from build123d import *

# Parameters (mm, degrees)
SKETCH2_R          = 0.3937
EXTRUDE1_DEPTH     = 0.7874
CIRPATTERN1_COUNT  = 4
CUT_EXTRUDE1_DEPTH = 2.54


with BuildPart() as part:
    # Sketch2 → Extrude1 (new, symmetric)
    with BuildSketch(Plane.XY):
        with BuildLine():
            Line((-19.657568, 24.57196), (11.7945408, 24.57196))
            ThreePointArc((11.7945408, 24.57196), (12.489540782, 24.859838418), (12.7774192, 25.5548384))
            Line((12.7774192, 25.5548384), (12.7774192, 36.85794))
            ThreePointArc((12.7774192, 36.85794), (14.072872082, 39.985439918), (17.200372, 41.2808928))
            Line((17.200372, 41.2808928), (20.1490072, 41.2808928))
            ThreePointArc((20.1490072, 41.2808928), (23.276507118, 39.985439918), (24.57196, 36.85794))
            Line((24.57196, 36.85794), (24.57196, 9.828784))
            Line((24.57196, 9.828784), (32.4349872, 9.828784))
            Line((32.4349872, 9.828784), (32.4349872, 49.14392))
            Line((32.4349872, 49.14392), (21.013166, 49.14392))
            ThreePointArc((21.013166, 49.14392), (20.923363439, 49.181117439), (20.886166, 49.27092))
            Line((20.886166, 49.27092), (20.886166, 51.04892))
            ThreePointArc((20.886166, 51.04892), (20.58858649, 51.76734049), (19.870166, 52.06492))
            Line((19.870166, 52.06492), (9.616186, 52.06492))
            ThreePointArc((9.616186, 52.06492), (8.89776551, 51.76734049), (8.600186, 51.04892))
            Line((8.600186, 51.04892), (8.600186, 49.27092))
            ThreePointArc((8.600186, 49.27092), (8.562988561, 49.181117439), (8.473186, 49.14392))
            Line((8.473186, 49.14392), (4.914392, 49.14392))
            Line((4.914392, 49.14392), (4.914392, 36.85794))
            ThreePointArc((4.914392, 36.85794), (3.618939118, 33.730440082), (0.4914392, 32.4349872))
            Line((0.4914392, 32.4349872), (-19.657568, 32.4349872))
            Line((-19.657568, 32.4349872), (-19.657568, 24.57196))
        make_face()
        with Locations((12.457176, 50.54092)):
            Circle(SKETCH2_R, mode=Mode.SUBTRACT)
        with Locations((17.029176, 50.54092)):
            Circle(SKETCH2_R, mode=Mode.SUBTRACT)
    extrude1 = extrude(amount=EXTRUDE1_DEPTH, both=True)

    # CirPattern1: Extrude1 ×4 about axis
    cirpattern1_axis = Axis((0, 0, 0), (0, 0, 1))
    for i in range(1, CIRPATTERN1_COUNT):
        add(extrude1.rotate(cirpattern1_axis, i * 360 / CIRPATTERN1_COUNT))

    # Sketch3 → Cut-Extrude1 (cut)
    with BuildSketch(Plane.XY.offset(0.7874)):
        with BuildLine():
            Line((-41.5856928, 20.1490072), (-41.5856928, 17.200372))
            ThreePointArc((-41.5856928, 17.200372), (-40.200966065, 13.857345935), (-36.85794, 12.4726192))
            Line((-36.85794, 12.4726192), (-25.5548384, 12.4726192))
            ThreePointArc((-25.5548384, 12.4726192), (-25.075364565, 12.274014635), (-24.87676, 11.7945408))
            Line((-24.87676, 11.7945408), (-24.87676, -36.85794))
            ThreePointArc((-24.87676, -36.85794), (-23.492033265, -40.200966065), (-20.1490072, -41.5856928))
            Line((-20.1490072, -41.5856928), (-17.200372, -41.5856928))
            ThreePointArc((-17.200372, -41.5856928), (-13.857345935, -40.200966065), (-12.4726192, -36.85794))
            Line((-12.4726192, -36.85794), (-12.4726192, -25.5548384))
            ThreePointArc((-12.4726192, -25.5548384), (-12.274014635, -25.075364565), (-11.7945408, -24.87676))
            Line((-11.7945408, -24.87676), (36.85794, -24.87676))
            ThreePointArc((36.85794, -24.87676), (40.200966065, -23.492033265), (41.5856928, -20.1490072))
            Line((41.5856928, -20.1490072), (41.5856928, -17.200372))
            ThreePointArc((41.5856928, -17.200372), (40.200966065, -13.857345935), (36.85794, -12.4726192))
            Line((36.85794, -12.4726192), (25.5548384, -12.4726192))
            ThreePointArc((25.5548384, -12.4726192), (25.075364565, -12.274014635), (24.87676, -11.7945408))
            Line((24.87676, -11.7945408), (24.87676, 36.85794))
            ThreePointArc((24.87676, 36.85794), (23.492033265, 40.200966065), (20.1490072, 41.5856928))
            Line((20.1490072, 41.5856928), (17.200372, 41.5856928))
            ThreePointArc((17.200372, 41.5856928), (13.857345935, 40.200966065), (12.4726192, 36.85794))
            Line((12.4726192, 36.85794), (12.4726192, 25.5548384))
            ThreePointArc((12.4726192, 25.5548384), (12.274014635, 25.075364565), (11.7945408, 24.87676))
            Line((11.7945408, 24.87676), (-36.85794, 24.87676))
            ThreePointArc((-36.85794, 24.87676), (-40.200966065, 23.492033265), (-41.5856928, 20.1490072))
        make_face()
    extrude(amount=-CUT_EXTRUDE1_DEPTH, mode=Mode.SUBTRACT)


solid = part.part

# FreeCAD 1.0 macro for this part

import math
import FreeCAD as App
import Part
import Sketcher
Q = App.Units.Quantity

doc = App.newDocument("Part")
body = doc.addObject("PartDesign::Body", "Body")

# Sketch on XY plane
sketch1 = body.newObject("Sketcher::SketchObject", "Sketch")
sketch1.AttachmentSupport = (doc.getObject("XY_Plane"), [""])
sketch1.MapMode = "FlatFace"
sketch1.addGeometry([
    Part.LineSegment(App.Vector(-19.66, 24.57, 0), App.Vector(11.79, 24.57, 0)),  # 0
    Part.ArcOfCircle(Part.Circle(App.Vector(11.79, 25.55, 0), App.Vector(0, 0, 1), 0.98), math.radians(-90), math.radians(0)),  # 1
    Part.LineSegment(App.Vector(12.78, 25.55, 0), App.Vector(12.78, 36.86, 0)),  # 2
    Part.ArcOfCircle(Part.Circle(App.Vector(17.2, 36.86, 0), App.Vector(0, 0, 1), 4.42), math.radians(90), math.radians(180)),  # 3
    Part.LineSegment(App.Vector(17.2, 41.28, 0), App.Vector(20.15, 41.28, 0)),  # 4
    Part.ArcOfCircle(Part.Circle(App.Vector(20.15, 36.86, 0), App.Vector(0, 0, 1), 4.42), math.radians(0), math.radians(90)),  # 5
    Part.LineSegment(App.Vector(24.57, 36.86, 0), App.Vector(24.57, 9.83, 0)),  # 6
    Part.LineSegment(App.Vector(24.57, 9.83, 0), App.Vector(32.43, 9.83, 0)),  # 7
    Part.LineSegment(App.Vector(32.43, 9.83, 0), App.Vector(32.43, 49.14, 0)),  # 8
    Part.LineSegment(App.Vector(32.43, 49.14, 0), App.Vector(21.01, 49.14, 0)),  # 9
    Part.ArcOfCircle(Part.Circle(App.Vector(21.01, 49.27, 0), App.Vector(0, 0, 1), 0.13), math.radians(-180), math.radians(-90)),  # 10
    Part.LineSegment(App.Vector(20.89, 49.27, 0), App.Vector(20.89, 51.05, 0)),  # 11
    Part.ArcOfCircle(Part.Circle(App.Vector(19.87, 51.05, 0), App.Vector(0, 0, 1), 1.02), math.radians(0), math.radians(90)),  # 12
    Part.LineSegment(App.Vector(19.87, 52.06, 0), App.Vector(9.62, 52.06, 0)),  # 13
    Part.ArcOfCircle(Part.Circle(App.Vector(9.62, 51.05, 0), App.Vector(0, 0, 1), 1.02), math.radians(90), math.radians(180)),  # 14
    Part.LineSegment(App.Vector(8.6, 51.05, 0), App.Vector(8.6, 49.27, 0)),  # 15
    Part.ArcOfCircle(Part.Circle(App.Vector(8.47, 49.27, 0), App.Vector(0, 0, 1), 0.13), math.radians(-90), math.radians(0)),  # 16
    Part.LineSegment(App.Vector(8.47, 49.14, 0), App.Vector(4.91, 49.14, 0)),  # 17
    Part.LineSegment(App.Vector(4.91, 49.14, 0), App.Vector(4.91, 36.86, 0)),  # 18
    Part.ArcOfCircle(Part.Circle(App.Vector(0.49, 36.86, 0), App.Vector(0, 0, 1), 4.42), math.radians(-90), math.radians(0)),  # 19
    Part.LineSegment(App.Vector(0.49, 32.43, 0), App.Vector(-19.66, 32.43, 0)),  # 20
    Part.LineSegment(App.Vector(-19.66, 32.43, 0), App.Vector(-19.66, 24.57, 0)),  # 21
    Part.Circle(App.Vector(12.46, 50.54, 0), App.Vector(0, 0, 1), 0.39),  # 22
    Part.Circle(App.Vector(17.03, 50.54, 0), App.Vector(0, 0, 1), 0.39),  # 23
], False)
sketch1.addConstraint([
    Sketcher.Constraint("Tangent", 0, 2, 1, 1),
    Sketcher.Constraint("Tangent", 1, 2, 2, 1),
    Sketcher.Constraint("Tangent", 2, 2, 3, 2),
    Sketcher.Constraint("Tangent", 3, 1, 4, 1),
    Sketcher.Constraint("Tangent", 4, 2, 5, 2),
    Sketcher.Constraint("Tangent", 5, 1, 6, 1),
    Sketcher.Constraint("Coincident", 6, 2, 7, 1),
    Sketcher.Constraint("Coincident", 7, 2, 8, 1),
    Sketcher.Constraint("Coincident", 8, 2, 9, 1),
    Sketcher.Constraint("Tangent", 9, 2, 10, 2),
    Sketcher.Constraint("Tangent", 10, 1, 11, 1),
    Sketcher.Constraint("Tangent", 11, 2, 12, 1),
    Sketcher.Constraint("Tangent", 12, 2, 13, 1),
    Sketcher.Constraint("Tangent", 13, 2, 14, 1),
    Sketcher.Constraint("Tangent", 14, 2, 15, 1),
    Sketcher.Constraint("Tangent", 15, 2, 16, 2),
    Sketcher.Constraint("Tangent", 16, 1, 17, 1),
    Sketcher.Constraint("Coincident", 17, 2, 18, 1),
    Sketcher.Constraint("Tangent", 18, 2, 19, 2),
    Sketcher.Constraint("Tangent", 19, 1, 20, 1),
    Sketcher.Constraint("Coincident", 20, 2, 21, 1),
    Sketcher.Constraint("Coincident", 21, 2, 0, 1),
    Sketcher.Constraint("Horizontal", 0),
    Sketcher.Constraint("Vertical", 2),
    Sketcher.Constraint("Horizontal", 4),
    Sketcher.Constraint("Vertical", 6),
    Sketcher.Constraint("Horizontal", 7),
    Sketcher.Constraint("Vertical", 8),
    Sketcher.Constraint("Horizontal", 9),
    Sketcher.Constraint("Vertical", 11),
    Sketcher.Constraint("Horizontal", 13),
    Sketcher.Constraint("Vertical", 15),
    Sketcher.Constraint("Horizontal", 17),
    Sketcher.Constraint("Vertical", 18),
    Sketcher.Constraint("Horizontal", 20),
    Sketcher.Constraint("Vertical", 21),
    Sketcher.Constraint("Equal", 3, 5),
    Sketcher.Constraint("Equal", 12, 14),
    Sketcher.Constraint("Equal", 10, 16),
    Sketcher.Constraint("Equal", 5, 19),
    Sketcher.Constraint("Equal", 22, 23),
    Sketcher.Constraint("Horizontal", 10, 3, 16, 3),
    Sketcher.Constraint("Horizontal", 5, 3, 19, 3),
    Sketcher.Constraint("Horizontal", 22, 3, 23, 3),
    Sketcher.Constraint("Equal", 7, 21),
    Sketcher.Constraint("Radius", 12, Q("0.04 in")),
    Sketcher.Constraint("Diameter", 22, Q("0.031 in")),
    Sketcher.Constraint("Radius", 10, Q("0.005 in")),
    Sketcher.Constraint("DistanceY", 11, 1, 11, 2, Q("0.07 in")),
    Sketcher.Constraint("DistanceY", 22, 3, 14, 3, Q("0.02 in")),
    Sketcher.Constraint("DistanceX", 22, 3, 23, 3, Q("0.18 in")),
    Sketcher.Constraint("DistanceX", 13, 2, 13, 1, Q("0.4037 in")),
    Sketcher.Constraint("DistanceY", 18, 2, 18, 1, Q("0.4837 in")),
    Sketcher.Constraint("Radius", 1, 0.982878),
    Sketcher.Constraint("DistanceY", 2, 1, 2, 2, 11.303102),
    Sketcher.Constraint("DistanceY", -1, 1, 3, 3, Q("1.4511 in")),
    Sketcher.Constraint("DistanceX", -1, 1, 5, 1, Q("0.9674 in")),
    Sketcher.Constraint("Radius", 3, 4.422953),
    Sketcher.Constraint("DistanceX", 19, 3, 1, 2, Q("0.4837 in")),
    Sketcher.Constraint("DistanceX", 20, 2, 18, 2, Q("0.9674 in")),
    Sketcher.Constraint("DistanceX", 9, 2, 9, 1, 11.421821),
    Sketcher.Constraint("DistanceX", 4, 1, 4, 2, 2.948635),
    Sketcher.Constraint("DistanceY", 6, 2, 6, 1, 27.029156),
    Sketcher.Constraint("DistanceX", 14, 3, 22, 3, 2.84099),
])
pad1 = body.newObject("PartDesign::Pad", "Pad")
pad1.Profile = sketch1
pad1.Length = Q("0.062 in")
pad1.Midplane = True
doc.recompute()

polarpattern = body.newObject("PartDesign::PolarPattern", "PolarPattern")
polarpattern.Originals = [pad1]
polarpattern.Axis = (doc.getObject("Z_Axis"), [""])
polarpattern.Angle = 360
polarpattern.Occurrences = 4
body.Tip = polarpattern

# Sketch on XY plane
sketch2 = body.newObject("Sketcher::SketchObject", "Sketch001")
sketch2.AttachmentSupport = (doc.getObject("XY_Plane"), [""])
sketch2.MapMode = "FlatFace"
sketch2.AttachmentOffset = App.Placement(App.Vector(0, 0, 0.031 * 25.4), App.Rotation())
sketch2.addGeometry([
    Part.LineSegment(App.Vector(-41.6, 20.1, 0), App.Vector(-41.6, 17.2, 0)),  # 0
    Part.ArcOfCircle(Part.Circle(App.Vector(-36.9, 17.2, 0), App.Vector(0, 0, 1), 4.7), math.radians(180), math.radians(270)),  # 1
    Part.LineSegment(App.Vector(-36.9, 12.5, 0), App.Vector(-25.6, 12.5, 0)),  # 2
    Part.ArcOfCircle(Part.Circle(App.Vector(-25.6, 11.8, 0), App.Vector(0, 0, 1), 0.7), math.radians(0), math.radians(90)),  # 3
    Part.LineSegment(App.Vector(-24.9, 11.8, 0), App.Vector(-24.9, -36.9, 0)),  # 4
    Part.ArcOfCircle(Part.Circle(App.Vector(-20.1, -36.9, 0), App.Vector(0, 0, 1), 4.7), math.radians(180), math.radians(270)),  # 5
    Part.LineSegment(App.Vector(-20.1, -41.6, 0), App.Vector(-17.2, -41.6, 0)),  # 6
    Part.ArcOfCircle(Part.Circle(App.Vector(-17.2, -36.9, 0), App.Vector(0, 0, 1), 4.7), math.radians(-90), math.radians(0)),  # 7
    Part.LineSegment(App.Vector(-12.5, -36.9, 0), App.Vector(-12.5, -25.6, 0)),  # 8
    Part.ArcOfCircle(Part.Circle(App.Vector(-11.8, -25.6, 0), App.Vector(0, 0, 1), 0.7), math.radians(90), math.radians(180)),  # 9
    Part.LineSegment(App.Vector(-11.8, -24.9, 0), App.Vector(36.9, -24.9, 0)),  # 10
    Part.ArcOfCircle(Part.Circle(App.Vector(36.9, -20.1, 0), App.Vector(0, 0, 1), 4.7), math.radians(-90), math.radians(0)),  # 11
    Part.LineSegment(App.Vector(41.6, -20.1, 0), App.Vector(41.6, -17.2, 0)),  # 12
    Part.ArcOfCircle(Part.Circle(App.Vector(36.9, -17.2, 0), App.Vector(0, 0, 1), 4.7), math.radians(0), math.radians(90)),  # 13
    Part.LineSegment(App.Vector(36.9, -12.5, 0), App.Vector(25.6, -12.5, 0)),  # 14
    Part.ArcOfCircle(Part.Circle(App.Vector(25.6, -11.8, 0), App.Vector(0, 0, 1), 0.7), math.radians(180), math.radians(270)),  # 15
    Part.LineSegment(App.Vector(24.9, -11.8, 0), App.Vector(24.9, 36.9, 0)),  # 16
    Part.ArcOfCircle(Part.Circle(App.Vector(20.1, 36.9, 0), App.Vector(0, 0, 1), 4.7), math.radians(0), math.radians(90)),  # 17
    Part.LineSegment(App.Vector(20.1, 41.6, 0), App.Vector(17.2, 41.6, 0)),  # 18
    Part.ArcOfCircle(Part.Circle(App.Vector(17.2, 36.9, 0), App.Vector(0, 0, 1), 4.7), math.radians(90), math.radians(180)),  # 19
    Part.LineSegment(App.Vector(12.5, 36.9, 0), App.Vector(12.5, 25.6, 0)),  # 20
    Part.ArcOfCircle(Part.Circle(App.Vector(11.8, 25.6, 0), App.Vector(0, 0, 1), 0.7), math.radians(-90), math.radians(0)),  # 21
    Part.LineSegment(App.Vector(11.8, 24.9, 0), App.Vector(-36.9, 24.9, 0)),  # 22
    Part.ArcOfCircle(Part.Circle(App.Vector(-36.9, 20.1, 0), App.Vector(0, 0, 1), 4.7), math.radians(90), math.radians(180)),  # 23
], False)
sketch2.addConstraint([
    Sketcher.Constraint("Tangent", 0, 2, 1, 1),
    Sketcher.Constraint("Tangent", 1, 2, 2, 1),
    Sketcher.Constraint("Tangent", 2, 2, 3, 2),
    Sketcher.Constraint("Tangent", 3, 1, 4, 1),
    Sketcher.Constraint("Tangent", 4, 2, 5, 1),
    Sketcher.Constraint("Tangent", 5, 2, 6, 1),
    Sketcher.Constraint("Tangent", 6, 2, 7, 1),
    Sketcher.Constraint("Tangent", 7, 2, 8, 1),
    Sketcher.Constraint("Tangent", 8, 2, 9, 2),
    Sketcher.Constraint("Tangent", 9, 1, 10, 1),
    Sketcher.Constraint("Tangent", 10, 2, 11, 1),
    Sketcher.Constraint("Tangent", 11, 2, 12, 1),
    Sketcher.Constraint("Tangent", 12, 2, 13, 1),
    Sketcher.Constraint("Tangent", 13, 2, 14, 1),
    Sketcher.Constraint("Tangent", 14, 2, 15, 2),
    Sketcher.Constraint("Tangent", 15, 1, 16, 1),
    Sketcher.Constraint("Tangent", 16, 2, 17, 1),
    Sketcher.Constraint("Tangent", 17, 2, 18, 1),
    Sketcher.Constraint("Tangent", 18, 2, 19, 1),
    Sketcher.Constraint("Tangent", 19, 2, 20, 1),
    Sketcher.Constraint("Tangent", 20, 2, 21, 2),
    Sketcher.Constraint("Tangent", 21, 1, 22, 1),
    Sketcher.Constraint("Tangent", 22, 2, 23, 1),
    Sketcher.Constraint("Tangent", 23, 2, 0, 1),
    Sketcher.Constraint("Vertical", 0),
    Sketcher.Constraint("Horizontal", 2),
    Sketcher.Constraint("Vertical", 4),
    Sketcher.Constraint("Horizontal", 6),
    Sketcher.Constraint("Vertical", 8),
    Sketcher.Constraint("Horizontal", 10),
    Sketcher.Constraint("Vertical", 12),
    Sketcher.Constraint("Horizontal", 14),
    Sketcher.Constraint("Vertical", 16),
    Sketcher.Constraint("Horizontal", 18),
    Sketcher.Constraint("Vertical", 20),
    Sketcher.Constraint("Horizontal", 22),
    Sketcher.Constraint("Equal", 1, 5),
    Sketcher.Constraint("Equal", 5, 7),
    Sketcher.Constraint("Equal", 3, 9),
    Sketcher.Constraint("Equal", 7, 11),
    Sketcher.Constraint("Equal", 11, 13),
    Sketcher.Constraint("Equal", 9, 15),
    Sketcher.Constraint("Equal", 13, 17),
    Sketcher.Constraint("Equal", 17, 19),
    Sketcher.Constraint("Equal", 15, 21),
    Sketcher.Constraint("Equal", 19, 23),
    Sketcher.Constraint("Symmetric", 1, 3, 13, 3, -1, 1),
    Sketcher.Constraint("Symmetric", 5, 3, 17, 3, -1, 1),
    Sketcher.Constraint("Symmetric", 9, 3, 21, 3, -1, 1),
    Sketcher.Constraint("Equal", 18, 0),
    Sketcher.Constraint("Equal", 22, 4),
    Sketcher.Constraint("Equal", 14, 8),
    Sketcher.Constraint("Radius", 3, 0.678078),
    Sketcher.Constraint("DistanceX", 2, 1, 2, 2, 11.303102),
    Sketcher.Constraint("DistanceX", 1, 3, -1, 1, Q("1.4511 in")),
    Sketcher.Constraint("Radius", 1, 4.727753),
    Sketcher.Constraint("DistanceX", 10, 1, 10, 2, 48.652481),
])
pocket1 = body.newObject("PartDesign::Pocket", "Pocket")
pocket1.Profile = sketch2
pocket1.Length = Q("0.1 in")

doc.recompute()
